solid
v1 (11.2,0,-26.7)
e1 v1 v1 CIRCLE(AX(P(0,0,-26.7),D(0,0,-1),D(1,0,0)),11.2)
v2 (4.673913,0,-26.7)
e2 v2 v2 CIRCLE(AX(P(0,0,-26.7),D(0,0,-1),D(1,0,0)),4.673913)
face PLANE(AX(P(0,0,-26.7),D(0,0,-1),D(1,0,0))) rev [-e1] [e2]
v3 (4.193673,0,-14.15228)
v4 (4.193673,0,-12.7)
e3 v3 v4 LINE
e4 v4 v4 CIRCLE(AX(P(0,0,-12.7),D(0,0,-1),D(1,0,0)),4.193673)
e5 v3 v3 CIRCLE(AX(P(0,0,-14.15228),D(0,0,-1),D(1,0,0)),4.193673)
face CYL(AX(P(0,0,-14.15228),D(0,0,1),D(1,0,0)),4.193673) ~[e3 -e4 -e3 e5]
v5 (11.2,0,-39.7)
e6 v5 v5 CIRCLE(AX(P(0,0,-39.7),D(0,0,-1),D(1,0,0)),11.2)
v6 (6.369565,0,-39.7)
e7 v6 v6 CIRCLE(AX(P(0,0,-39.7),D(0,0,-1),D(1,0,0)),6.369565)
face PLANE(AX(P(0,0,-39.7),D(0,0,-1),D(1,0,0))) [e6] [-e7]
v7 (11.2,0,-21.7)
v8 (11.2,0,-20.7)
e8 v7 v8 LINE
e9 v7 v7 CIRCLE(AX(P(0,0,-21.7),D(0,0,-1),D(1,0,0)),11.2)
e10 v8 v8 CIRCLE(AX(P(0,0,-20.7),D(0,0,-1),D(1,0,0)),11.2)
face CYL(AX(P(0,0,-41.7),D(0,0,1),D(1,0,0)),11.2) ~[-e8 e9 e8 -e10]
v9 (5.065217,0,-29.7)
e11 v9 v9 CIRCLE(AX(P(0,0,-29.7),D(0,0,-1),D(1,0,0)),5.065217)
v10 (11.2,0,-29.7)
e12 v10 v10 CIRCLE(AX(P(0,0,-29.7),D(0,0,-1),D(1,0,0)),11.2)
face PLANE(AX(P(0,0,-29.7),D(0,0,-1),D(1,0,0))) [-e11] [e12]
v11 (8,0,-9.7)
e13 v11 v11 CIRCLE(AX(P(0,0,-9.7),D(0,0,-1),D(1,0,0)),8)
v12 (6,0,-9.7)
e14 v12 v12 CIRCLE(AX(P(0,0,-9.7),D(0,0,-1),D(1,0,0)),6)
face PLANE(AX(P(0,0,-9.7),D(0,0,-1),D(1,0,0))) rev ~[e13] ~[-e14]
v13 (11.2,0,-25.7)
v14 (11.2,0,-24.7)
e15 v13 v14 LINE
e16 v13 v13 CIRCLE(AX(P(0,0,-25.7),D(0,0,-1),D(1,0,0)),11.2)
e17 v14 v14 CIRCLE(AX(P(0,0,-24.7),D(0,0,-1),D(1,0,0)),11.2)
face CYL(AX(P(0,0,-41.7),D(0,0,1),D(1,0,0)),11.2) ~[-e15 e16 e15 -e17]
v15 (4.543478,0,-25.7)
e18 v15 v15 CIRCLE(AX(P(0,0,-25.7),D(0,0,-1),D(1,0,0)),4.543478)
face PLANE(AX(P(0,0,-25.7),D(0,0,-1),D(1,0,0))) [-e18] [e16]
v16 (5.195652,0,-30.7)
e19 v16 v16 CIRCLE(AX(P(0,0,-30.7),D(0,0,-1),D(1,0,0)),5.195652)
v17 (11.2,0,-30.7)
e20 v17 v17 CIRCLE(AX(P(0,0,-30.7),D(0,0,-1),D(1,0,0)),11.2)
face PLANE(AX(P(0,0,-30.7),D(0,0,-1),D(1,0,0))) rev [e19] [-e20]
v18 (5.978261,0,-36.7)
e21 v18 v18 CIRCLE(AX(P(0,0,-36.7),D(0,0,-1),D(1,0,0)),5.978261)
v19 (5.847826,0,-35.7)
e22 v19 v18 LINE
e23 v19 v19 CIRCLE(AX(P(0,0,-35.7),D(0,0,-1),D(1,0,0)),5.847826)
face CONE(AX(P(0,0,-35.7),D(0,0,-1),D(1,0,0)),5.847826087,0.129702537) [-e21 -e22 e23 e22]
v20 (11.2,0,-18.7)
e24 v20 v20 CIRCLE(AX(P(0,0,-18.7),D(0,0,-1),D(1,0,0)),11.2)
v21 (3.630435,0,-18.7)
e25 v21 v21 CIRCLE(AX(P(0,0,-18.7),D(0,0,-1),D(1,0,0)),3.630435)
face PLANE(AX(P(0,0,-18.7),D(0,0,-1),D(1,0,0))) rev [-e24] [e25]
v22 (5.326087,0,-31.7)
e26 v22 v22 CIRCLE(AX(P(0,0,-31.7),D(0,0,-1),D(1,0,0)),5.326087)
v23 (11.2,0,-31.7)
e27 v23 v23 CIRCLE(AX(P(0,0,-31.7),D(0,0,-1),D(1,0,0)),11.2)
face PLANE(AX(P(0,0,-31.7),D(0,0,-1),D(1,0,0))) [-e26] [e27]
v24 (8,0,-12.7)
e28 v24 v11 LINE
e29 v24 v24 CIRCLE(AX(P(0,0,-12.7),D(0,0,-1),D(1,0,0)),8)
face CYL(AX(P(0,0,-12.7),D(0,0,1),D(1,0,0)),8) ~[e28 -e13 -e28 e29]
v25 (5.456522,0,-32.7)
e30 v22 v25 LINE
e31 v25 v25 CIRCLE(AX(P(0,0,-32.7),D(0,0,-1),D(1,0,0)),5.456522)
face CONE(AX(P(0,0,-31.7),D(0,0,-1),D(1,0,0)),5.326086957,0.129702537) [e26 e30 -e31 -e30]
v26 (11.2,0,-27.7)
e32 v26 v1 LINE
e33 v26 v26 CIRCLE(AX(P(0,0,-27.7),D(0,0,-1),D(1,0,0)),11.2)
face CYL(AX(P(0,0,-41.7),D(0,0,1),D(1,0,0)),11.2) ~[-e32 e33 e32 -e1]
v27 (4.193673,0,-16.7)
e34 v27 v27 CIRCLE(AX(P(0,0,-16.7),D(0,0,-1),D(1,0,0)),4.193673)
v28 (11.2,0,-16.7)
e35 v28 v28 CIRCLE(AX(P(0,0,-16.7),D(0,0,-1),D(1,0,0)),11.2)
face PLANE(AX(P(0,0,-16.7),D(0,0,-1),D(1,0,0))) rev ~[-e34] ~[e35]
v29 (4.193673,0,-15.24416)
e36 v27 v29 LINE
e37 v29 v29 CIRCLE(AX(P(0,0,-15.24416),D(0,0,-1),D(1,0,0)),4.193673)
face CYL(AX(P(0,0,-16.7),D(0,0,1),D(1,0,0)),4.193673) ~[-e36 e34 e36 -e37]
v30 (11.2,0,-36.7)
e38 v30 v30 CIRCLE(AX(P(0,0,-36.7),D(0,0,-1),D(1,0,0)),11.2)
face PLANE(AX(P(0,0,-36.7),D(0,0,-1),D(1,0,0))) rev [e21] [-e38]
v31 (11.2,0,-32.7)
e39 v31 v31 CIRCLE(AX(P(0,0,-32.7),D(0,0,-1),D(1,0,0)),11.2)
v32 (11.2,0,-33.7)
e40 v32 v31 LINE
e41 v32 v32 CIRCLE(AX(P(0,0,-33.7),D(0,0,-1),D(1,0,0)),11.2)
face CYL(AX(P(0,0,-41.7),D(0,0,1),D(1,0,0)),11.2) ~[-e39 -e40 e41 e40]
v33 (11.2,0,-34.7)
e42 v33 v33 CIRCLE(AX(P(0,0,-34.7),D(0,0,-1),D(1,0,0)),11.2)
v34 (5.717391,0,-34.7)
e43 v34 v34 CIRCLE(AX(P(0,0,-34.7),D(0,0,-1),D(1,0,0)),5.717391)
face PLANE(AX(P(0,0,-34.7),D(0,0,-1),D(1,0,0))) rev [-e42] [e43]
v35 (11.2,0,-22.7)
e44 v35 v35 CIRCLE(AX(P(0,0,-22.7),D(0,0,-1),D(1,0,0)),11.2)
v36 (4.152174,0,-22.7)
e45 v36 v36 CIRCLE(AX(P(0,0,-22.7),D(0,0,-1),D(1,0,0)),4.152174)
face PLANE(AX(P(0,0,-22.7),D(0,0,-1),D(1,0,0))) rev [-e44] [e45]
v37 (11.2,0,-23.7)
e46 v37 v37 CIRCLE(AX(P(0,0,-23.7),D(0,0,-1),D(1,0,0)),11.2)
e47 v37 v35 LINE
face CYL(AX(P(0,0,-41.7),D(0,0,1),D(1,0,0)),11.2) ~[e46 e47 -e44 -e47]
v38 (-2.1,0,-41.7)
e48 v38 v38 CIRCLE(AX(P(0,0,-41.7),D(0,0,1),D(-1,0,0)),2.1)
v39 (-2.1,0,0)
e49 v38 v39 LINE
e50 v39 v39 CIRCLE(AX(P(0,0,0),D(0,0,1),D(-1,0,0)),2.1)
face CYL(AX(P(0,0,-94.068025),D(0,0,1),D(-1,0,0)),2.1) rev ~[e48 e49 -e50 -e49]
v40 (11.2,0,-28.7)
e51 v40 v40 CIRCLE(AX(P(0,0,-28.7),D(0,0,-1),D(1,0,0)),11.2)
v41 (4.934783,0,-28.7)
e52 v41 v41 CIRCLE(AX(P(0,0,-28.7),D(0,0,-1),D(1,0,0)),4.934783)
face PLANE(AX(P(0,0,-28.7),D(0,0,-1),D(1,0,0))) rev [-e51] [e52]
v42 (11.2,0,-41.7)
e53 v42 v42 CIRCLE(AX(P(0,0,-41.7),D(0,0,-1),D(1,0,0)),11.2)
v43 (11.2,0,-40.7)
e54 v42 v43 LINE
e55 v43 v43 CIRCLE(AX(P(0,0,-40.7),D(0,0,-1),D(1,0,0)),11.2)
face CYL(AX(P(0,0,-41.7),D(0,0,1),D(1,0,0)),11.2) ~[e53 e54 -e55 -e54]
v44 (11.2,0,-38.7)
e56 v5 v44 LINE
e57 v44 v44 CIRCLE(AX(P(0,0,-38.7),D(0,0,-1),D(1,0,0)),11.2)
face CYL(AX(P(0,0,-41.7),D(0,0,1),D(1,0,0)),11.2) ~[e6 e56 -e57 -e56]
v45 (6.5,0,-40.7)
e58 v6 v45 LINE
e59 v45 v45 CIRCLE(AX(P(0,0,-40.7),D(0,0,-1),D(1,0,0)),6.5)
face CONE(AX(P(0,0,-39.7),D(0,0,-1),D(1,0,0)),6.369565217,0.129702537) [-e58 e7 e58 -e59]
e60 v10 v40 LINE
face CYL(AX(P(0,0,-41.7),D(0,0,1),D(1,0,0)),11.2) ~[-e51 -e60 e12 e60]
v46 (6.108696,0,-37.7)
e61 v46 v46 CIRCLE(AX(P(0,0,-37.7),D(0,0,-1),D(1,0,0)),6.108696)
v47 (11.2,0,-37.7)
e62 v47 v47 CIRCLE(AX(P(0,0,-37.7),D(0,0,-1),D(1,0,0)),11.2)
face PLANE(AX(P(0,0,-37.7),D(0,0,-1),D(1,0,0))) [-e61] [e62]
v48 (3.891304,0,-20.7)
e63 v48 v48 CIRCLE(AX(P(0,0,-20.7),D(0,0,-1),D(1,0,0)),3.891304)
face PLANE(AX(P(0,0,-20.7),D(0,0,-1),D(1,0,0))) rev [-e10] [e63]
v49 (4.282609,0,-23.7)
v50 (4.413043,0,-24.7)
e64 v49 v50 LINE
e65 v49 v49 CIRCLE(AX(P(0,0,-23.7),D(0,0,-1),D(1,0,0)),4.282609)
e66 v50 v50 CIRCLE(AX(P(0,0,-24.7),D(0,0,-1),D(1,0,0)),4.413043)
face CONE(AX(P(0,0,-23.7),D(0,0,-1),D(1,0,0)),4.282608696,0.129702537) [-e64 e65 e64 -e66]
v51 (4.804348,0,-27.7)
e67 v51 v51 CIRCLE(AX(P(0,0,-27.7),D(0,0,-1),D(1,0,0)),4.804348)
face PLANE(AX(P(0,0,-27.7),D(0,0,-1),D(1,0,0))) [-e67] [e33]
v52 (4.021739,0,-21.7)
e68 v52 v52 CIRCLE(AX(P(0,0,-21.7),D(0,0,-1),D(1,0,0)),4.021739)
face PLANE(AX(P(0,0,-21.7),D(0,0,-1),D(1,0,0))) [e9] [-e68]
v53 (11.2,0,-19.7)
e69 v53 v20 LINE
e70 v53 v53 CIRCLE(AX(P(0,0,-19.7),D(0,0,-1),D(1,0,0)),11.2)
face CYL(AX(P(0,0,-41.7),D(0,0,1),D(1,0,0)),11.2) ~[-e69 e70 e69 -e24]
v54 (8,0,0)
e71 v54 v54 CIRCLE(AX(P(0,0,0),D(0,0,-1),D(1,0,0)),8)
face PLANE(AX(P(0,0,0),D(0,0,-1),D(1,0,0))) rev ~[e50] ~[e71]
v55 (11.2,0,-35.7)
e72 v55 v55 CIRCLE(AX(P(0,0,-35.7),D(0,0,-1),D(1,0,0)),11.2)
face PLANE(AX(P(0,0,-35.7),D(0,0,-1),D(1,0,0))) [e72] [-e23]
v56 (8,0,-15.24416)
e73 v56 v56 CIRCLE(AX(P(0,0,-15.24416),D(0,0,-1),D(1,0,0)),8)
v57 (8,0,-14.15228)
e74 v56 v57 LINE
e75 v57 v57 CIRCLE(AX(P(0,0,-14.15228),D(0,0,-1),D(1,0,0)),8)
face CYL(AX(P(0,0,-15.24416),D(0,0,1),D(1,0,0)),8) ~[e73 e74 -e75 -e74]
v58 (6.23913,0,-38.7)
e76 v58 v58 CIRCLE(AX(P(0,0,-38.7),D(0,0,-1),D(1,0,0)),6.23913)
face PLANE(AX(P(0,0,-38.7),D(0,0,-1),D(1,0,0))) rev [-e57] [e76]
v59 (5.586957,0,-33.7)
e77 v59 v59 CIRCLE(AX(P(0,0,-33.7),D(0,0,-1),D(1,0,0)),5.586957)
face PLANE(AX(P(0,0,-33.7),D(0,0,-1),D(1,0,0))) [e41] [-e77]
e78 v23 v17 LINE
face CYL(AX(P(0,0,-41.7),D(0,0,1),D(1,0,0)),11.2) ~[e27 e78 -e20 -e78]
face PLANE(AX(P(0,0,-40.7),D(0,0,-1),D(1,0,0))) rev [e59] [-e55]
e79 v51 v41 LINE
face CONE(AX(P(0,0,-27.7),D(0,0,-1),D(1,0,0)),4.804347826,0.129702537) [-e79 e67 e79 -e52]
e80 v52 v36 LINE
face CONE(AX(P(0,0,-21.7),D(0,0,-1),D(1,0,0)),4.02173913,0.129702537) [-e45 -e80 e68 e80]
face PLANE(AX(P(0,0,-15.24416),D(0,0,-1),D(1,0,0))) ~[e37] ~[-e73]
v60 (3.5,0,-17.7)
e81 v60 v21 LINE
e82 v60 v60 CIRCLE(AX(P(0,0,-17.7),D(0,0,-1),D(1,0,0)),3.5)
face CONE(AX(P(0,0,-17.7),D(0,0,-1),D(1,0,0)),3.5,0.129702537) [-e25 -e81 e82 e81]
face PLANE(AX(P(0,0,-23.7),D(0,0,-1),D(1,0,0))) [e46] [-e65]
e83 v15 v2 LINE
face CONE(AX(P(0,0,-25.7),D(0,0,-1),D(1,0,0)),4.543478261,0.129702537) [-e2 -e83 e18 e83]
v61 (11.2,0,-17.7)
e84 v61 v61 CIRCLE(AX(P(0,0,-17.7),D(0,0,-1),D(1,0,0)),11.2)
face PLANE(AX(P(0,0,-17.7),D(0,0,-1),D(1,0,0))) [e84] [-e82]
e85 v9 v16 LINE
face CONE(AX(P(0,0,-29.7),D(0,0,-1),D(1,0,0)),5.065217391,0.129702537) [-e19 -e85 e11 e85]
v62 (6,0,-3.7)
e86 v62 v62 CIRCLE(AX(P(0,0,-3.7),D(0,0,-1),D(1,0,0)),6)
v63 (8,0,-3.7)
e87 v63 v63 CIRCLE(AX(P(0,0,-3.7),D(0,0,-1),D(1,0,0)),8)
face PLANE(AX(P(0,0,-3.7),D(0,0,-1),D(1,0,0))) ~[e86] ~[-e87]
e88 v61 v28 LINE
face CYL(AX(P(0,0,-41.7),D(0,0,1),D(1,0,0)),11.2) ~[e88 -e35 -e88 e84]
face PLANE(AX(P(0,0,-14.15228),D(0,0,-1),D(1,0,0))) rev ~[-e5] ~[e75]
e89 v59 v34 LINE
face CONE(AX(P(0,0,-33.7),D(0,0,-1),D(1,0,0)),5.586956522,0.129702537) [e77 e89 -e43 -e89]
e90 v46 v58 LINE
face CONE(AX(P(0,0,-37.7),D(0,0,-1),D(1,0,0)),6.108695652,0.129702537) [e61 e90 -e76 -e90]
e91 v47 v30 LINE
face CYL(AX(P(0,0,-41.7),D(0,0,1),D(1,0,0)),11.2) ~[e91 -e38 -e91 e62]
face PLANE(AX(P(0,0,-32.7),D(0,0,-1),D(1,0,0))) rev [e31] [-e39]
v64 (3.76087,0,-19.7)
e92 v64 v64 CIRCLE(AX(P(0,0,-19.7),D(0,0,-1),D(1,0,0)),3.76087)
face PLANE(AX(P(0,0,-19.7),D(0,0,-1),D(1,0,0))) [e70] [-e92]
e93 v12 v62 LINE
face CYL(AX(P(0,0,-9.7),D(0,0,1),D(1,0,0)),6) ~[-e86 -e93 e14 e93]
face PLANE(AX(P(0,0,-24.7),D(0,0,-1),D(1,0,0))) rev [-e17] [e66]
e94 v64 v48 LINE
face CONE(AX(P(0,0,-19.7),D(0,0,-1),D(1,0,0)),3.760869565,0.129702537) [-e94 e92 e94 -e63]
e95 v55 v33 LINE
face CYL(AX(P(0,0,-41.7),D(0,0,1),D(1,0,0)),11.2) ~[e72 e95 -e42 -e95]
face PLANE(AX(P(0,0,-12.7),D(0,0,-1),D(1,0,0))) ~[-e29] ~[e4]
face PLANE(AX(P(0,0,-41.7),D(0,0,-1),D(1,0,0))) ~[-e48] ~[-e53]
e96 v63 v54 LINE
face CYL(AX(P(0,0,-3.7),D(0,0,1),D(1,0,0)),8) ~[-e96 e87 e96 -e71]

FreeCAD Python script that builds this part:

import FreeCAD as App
import Part
import Sketcher
from FreeCAD import Vector
Q = App.Units.Quantity


def add_polygon(sketch, points):
    """Adds a closed chain of lines whose ends are joined by coincident constraints."""
    first, n = sketch.GeometryCount, len(points)
    for a, b in zip(points, points[1:] + points[:1]):
        sketch.addGeometry(Part.LineSegment(App.Vector(*a, 0), App.Vector(*b, 0)), False)
    for i in range(n):
        sketch.addConstraint(Sketcher.Constraint("Coincident", first + i, 2, first + (i + 1) % n, 1))

doc = App.newDocument("Part")
body = doc.addObject("PartDesign::Body", "Body")

# Sketch on XZ plane
sketch1 = body.newObject("Sketcher::SketchObject", "Sketch")
sketch1.AttachmentSupport = (doc.getObject("XZ_Plane"), [""])
sketch1.MapMode = "FlatFace"
add_polygon(sketch1, [(8, 0), (0, 0), (0, -41.7), (11.2, -41.7), (11.2, -16.7), (4.2, -16.7), (4.2, -15.2), (8, -15.2), (8, -14.2), (4.2, -14.2), (4.2, -12.7), (8, -12.7), (8, -9.7), (6, -9.7), (6, -3.7), (8, -3.7)])  # lines 0-15
sketch1.addConstraint([
    Sketcher.Constraint("Horizontal", 0),
    Sketcher.Constraint("Vertical", 1),
    Sketcher.Constraint("Horizontal", 2),
    Sketcher.Constraint("Vertical", 3),
    Sketcher.Constraint("Horizontal", 4),
    Sketcher.Constraint("Vertical", 5),
    Sketcher.Constraint("Horizontal", 6),
    Sketcher.Constraint("Vertical", 7),
    Sketcher.Constraint("Horizontal", 8),
    Sketcher.Constraint("Vertical", 9),
    Sketcher.Constraint("Horizontal", 10),
    Sketcher.Constraint("Vertical", 11),
    Sketcher.Constraint("Horizontal", 12),
    Sketcher.Constraint("Vertical", 13),
    Sketcher.Constraint("Horizontal", 14),
    Sketcher.Constraint("Vertical", 15),
    Sketcher.Constraint("Coincident", 0, 2, -1, 1),
    Sketcher.Constraint("Vertical", 5, 2, 8, 2),
    Sketcher.Constraint("Vertical", 7, 2, 10, 2),
    Sketcher.Constraint("Vertical", 11, 2, 14, 2),
    Sketcher.Constraint("DistanceX", 0, 2, 0, 1, Q("8 mm")),
    Sketcher.Constraint("DistanceX", 12, 2, 12, 1, Q("2 mm")),
    Sketcher.Constraint("DistanceY", 3, 1, 3, 2, Q("25 mm")),
    Sketcher.Constraint("DistanceY", 11, 1, 11, 2, Q("3 mm")),
    Sketcher.Constraint("DistanceY", 13, 1, 13, 2, Q("6 mm")),
    Sketcher.Constraint("DistanceX", 2, 1, 2, 2, Q("11.2 mm")),
    Sketcher.Constraint("DistanceY", 1, 2, 1, 1, Q("41.7 mm")),
    Sketcher.Constraint("DistanceY", 15, 1, 15, 2, Q("3.7 mm")),
    Sketcher.Constraint("DistanceY", 5, 1, 5, 2, Q("1.45584 mm")),
    Sketcher.Constraint("DistanceY", 7, 1, 7, 2, Q("1.091881 mm")),
    Sketcher.Constraint("DistanceX", 4, 2, 4, 1, Q("7.006327 mm")),
])
revolution = body.newObject("PartDesign::Revolution", "Revolution")
revolution.Profile = sketch1
revolution.ReferenceAxis = (sketch1, ["V_Axis"])
revolution.Angle = 360

# Sketch on XY plane
sketch2 = body.newObject("Sketcher::SketchObject", "Sketch001")
sketch2.AttachmentSupport = (doc.getObject("XY_Plane"), [""])
sketch2.MapMode = "FlatFace"
sketch2.AttachmentOffset = App.Placement(Vector(0, 0, -41.7), App.Rotation())
sketch2.addGeometry(Part.Circle(Vector(0, 0, 0), Vector(0, 0, 1), 2.1), False)
sketch2.addConstraint([
    Sketcher.Constraint("Coincident", 0, 3, -1, 1),
    Sketcher.Constraint("Diameter", 0, Q("4.2 mm")),
])
doc.recompute()
hole = body.newObject("PartDesign::Hole", "Hole")
hole.Profile = sketch2
hole.ThreadType = "None"
hole.Diameter = 4.2
hole.DepthType = "ThroughAll"
hole.Reversed = True

# Sketch on XZ plane
sketch3 = body.newObject("Sketcher::SketchObject", "Sketch002")
sketch3.AttachmentSupport = (doc.getObject("XZ_Plane"), [""])
sketch3.MapMode = "FlatFace"
add_polygon(sketch3, [(11.2, -18.7), (11.2, -17.7), (3.5, -17.7), (3.6, -18.7)])  # lines 0-3
add_polygon(sketch3, [(11.2, -39.7), (6.4, -39.7), (6.5, -40.7), (11.2, -40.7)])  # lines 4-7
add_polygon(sketch3, [(11.2, -37.7), (6.1, -37.7), (6.2, -38.7), (11.2, -38.7)])  # lines 8-11
add_polygon(sketch3, [(11.2, -35.7), (5.8, -35.7), (6, -36.7), (11.2, -36.7)])  # lines 12-15
add_polygon(sketch3, [(11.2, -33.7), (5.6, -33.7), (5.7, -34.7), (11.2, -34.7)])  # lines 16-19
add_polygon(sketch3, [(11.2, -31.7), (5.3, -31.7), (5.5, -32.7), (11.2, -32.7)])  # lines 20-23
add_polygon(sketch3, [(11.2, -29.7), (5.1, -29.7), (5.2, -30.7), (11.2, -30.7)])  # lines 24-27
add_polygon(sketch3, [(11.2, -27.7), (4.8, -27.7), (4.9, -28.7), (11.2, -28.7)])  # lines 28-31
add_polygon(sketch3, [(11.2, -25.7), (4.5, -25.7), (4.7, -26.7), (11.2, -26.7)])  # lines 32-35
add_polygon(sketch3, [(11.2, -23.7), (4.3, -23.7), (4.4, -24.7), (11.2, -24.7)])  # lines 36-39
add_polygon(sketch3, [(11.2, -21.7), (4, -21.7), (4.2, -22.7), (11.2, -22.7)])  # lines 40-43
add_polygon(sketch3, [(11.2, -19.7), (3.8, -19.7), (3.9, -20.7), (11.2, -20.7)])  # lines 44-47
sketch3.addConstraint([
    Sketcher.Constraint("Vertical", 0),
    Sketcher.Constraint("Horizontal", 1),
    Sketcher.Constraint("Horizontal", 3),
    Sketcher.Constraint("Horizontal", 4),
    Sketcher.Constraint("Horizontal", 6),
    Sketcher.Constraint("Vertical", 7),
    Sketcher.Constraint("Horizontal", 8),
    Sketcher.Constraint("Horizontal", 10),
    Sketcher.Constraint("Vertical", 11),
    Sketcher.Constraint("Horizontal", 12),
    Sketcher.Constraint("Horizontal", 14),
    Sketcher.Constraint("Vertical", 15),
    Sketcher.Constraint("Horizontal", 16),
    Sketcher.Constraint("Horizontal", 18),
    Sketcher.Constraint("Vertical", 19),
    Sketcher.Constraint("Horizontal", 20),
    Sketcher.Constraint("Horizontal", 22),
    Sketcher.Constraint("Vertical", 23),
    Sketcher.Constraint("Horizontal", 24),
    Sketcher.Constraint("Horizontal", 26),
    Sketcher.Constraint("Vertical", 27),
    Sketcher.Constraint("Horizontal", 28),
    Sketcher.Constraint("Horizontal", 30),
    Sketcher.Constraint("Vertical", 31),
    Sketcher.Constraint("Horizontal", 32),
    Sketcher.Constraint("Horizontal", 34),
    Sketcher.Constraint("Vertical", 35),
    Sketcher.Constraint("Horizontal", 36),
    Sketcher.Constraint("Horizontal", 38),
    Sketcher.Constraint("Vertical", 39),
    Sketcher.Constraint("Horizontal", 40),
    Sketcher.Constraint("Horizontal", 42),
    Sketcher.Constraint("Vertical", 43),
    Sketcher.Constraint("Horizontal", 44),
    Sketcher.Constraint("Horizontal", 46),
    Sketcher.Constraint("Vertical", 47),
    Sketcher.Constraint("Parallel", 2, 5),
    Sketcher.Constraint("Parallel", 5, 9),
    Sketcher.Constraint("Parallel", 9, 13),
    Sketcher.Constraint("Parallel", 13, 17),
    Sketcher.Constraint("Parallel", 17, 21),
    Sketcher.Constraint("Parallel", 21, 25),
    Sketcher.Constraint("Parallel", 25, 29),
    Sketcher.Constraint("Parallel", 29, 33),
    Sketcher.Constraint("Parallel", 33, 37),
    Sketcher.Constraint("Parallel", 37, 41),
    Sketcher.Constraint("Parallel", 41, 45),
    Sketcher.Constraint("Vertical", 3, 2, 6, 2),
    Sketcher.Constraint("Vertical", 7, 2, 10, 2),
    Sketcher.Constraint("Vertical", 11, 2, 14, 2),
    Sketcher.Constraint("Vertical", 15, 2, 18, 2),
    Sketcher.Constraint("Vertical", 19, 2, 22, 2),
    Sketcher.Constraint("Vertical", 23, 2, 26, 2),
    Sketcher.Constraint("Vertical", 27, 2, 30, 2),
    Sketcher.Constraint("Vertical", 31, 2, 34, 2),
    Sketcher.Constraint("Vertical", 35, 2, 38, 2),
    Sketcher.Constraint("Vertical", 39, 2, 42, 2),
    Sketcher.Constraint("Vertical", 43, 2, 46, 2),
    Sketcher.Constraint("Equal", 0, 7),
    Sketcher.Constraint("Equal", 7, 11),
    Sketcher.Constraint("Equal", 11, 15),
    Sketcher.Constraint("Equal", 15, 19),
    Sketcher.Constraint("Equal", 19, 23),
    Sketcher.Constraint("Equal", 23, 27),
    Sketcher.Constraint("Equal", 27, 31),
    Sketcher.Constraint("Equal", 31, 35),
    Sketcher.Constraint("Equal", 35, 39),
    Sketcher.Constraint("Equal", 39, 43),
    Sketcher.Constraint("Equal", 43, 47),
    Sketcher.Constraint("DistanceY", 0, 1, 0, 2, Q("1 mm")),
    Sketcher.Constraint("DistanceX", 1, 2, 1, 1, Q("7.7 mm")),
    Sketcher.Constraint("DistanceX", 6, 1, 6, 2, Q("4.7 mm")),
    Sketcher.Constraint("DistanceY", 4, 2, 2, 2, Q("21 mm")),
    Sketcher.Constraint("DistanceY", 4, 2, 8, 2, Q("2 mm")),
    Sketcher.Constraint("DistanceY", 8, 2, 12, 2, Q("2 mm")),
    Sketcher.Constraint("DistanceY", 12, 2, 16, 2, Q("2 mm")),
    Sketcher.Constraint("DistanceY", 16, 2, 20, 2, Q("2 mm")),
    Sketcher.Constraint("DistanceY", 20, 2, 24, 2, Q("2 mm")),
    Sketcher.Constraint("DistanceY", 24, 2, 28, 2, Q("2 mm")),
    Sketcher.Constraint("DistanceY", 28, 2, 32, 2, Q("2 mm")),
    Sketcher.Constraint("DistanceY", 32, 2, 36, 2, Q("2 mm")),
    Sketcher.Constraint("DistanceY", 36, 2, 40, 2, Q("2 mm")),
    Sketcher.Constraint("DistanceY", 44, 2, 2, 2, Q("1 mm")),
    Sketcher.Constraint("DistanceX", -1, 1, 0, 2, Q("11.2 mm")),
    Sketcher.Constraint("DistanceY", 0, 2, -1, 1, Q("17.7 mm")),
    Sketcher.Constraint("DistanceX", 10, 1, 10, 2, Q("4.96087 mm")),
    Sketcher.Constraint("DistanceX", 14, 1, 14, 2, Q("5.221739 mm")),
    Sketcher.Constraint("DistanceX", 18, 1, 18, 2, Q("5.482609 mm")),
    Sketcher.Constraint("DistanceX", 22, 1, 22, 2, Q("5.743478 mm")),
    Sketcher.Constraint("DistanceX", 32, 2, 32, 1, Q("6.656522 mm")),
    Sketcher.Constraint("DistanceX", 36, 2, 36, 1, Q("6.917391 mm")),
    Sketcher.Constraint("DistanceX", 40, 2, 40, 1, Q("7.178261 mm")),
    Sketcher.Constraint("DistanceX", 44, 2, 44, 1, Q("7.43913 mm")),
    Sketcher.Constraint("Distance", 2, Q("1.008471 mm")),
    Sketcher.Constraint("DistanceX", 24, 2, 24, 1, Q("6.134783 mm")),
    Sketcher.Constraint("DistanceX", 28, 2, 28, 1, Q("6.395652 mm")),
])
groove = body.newObject("PartDesign::Groove", "Groove")
groove.Profile = sketch3
groove.ReferenceAxis = (sketch3, ["V_Axis"])
groove.Angle = 360

doc.recompute()
